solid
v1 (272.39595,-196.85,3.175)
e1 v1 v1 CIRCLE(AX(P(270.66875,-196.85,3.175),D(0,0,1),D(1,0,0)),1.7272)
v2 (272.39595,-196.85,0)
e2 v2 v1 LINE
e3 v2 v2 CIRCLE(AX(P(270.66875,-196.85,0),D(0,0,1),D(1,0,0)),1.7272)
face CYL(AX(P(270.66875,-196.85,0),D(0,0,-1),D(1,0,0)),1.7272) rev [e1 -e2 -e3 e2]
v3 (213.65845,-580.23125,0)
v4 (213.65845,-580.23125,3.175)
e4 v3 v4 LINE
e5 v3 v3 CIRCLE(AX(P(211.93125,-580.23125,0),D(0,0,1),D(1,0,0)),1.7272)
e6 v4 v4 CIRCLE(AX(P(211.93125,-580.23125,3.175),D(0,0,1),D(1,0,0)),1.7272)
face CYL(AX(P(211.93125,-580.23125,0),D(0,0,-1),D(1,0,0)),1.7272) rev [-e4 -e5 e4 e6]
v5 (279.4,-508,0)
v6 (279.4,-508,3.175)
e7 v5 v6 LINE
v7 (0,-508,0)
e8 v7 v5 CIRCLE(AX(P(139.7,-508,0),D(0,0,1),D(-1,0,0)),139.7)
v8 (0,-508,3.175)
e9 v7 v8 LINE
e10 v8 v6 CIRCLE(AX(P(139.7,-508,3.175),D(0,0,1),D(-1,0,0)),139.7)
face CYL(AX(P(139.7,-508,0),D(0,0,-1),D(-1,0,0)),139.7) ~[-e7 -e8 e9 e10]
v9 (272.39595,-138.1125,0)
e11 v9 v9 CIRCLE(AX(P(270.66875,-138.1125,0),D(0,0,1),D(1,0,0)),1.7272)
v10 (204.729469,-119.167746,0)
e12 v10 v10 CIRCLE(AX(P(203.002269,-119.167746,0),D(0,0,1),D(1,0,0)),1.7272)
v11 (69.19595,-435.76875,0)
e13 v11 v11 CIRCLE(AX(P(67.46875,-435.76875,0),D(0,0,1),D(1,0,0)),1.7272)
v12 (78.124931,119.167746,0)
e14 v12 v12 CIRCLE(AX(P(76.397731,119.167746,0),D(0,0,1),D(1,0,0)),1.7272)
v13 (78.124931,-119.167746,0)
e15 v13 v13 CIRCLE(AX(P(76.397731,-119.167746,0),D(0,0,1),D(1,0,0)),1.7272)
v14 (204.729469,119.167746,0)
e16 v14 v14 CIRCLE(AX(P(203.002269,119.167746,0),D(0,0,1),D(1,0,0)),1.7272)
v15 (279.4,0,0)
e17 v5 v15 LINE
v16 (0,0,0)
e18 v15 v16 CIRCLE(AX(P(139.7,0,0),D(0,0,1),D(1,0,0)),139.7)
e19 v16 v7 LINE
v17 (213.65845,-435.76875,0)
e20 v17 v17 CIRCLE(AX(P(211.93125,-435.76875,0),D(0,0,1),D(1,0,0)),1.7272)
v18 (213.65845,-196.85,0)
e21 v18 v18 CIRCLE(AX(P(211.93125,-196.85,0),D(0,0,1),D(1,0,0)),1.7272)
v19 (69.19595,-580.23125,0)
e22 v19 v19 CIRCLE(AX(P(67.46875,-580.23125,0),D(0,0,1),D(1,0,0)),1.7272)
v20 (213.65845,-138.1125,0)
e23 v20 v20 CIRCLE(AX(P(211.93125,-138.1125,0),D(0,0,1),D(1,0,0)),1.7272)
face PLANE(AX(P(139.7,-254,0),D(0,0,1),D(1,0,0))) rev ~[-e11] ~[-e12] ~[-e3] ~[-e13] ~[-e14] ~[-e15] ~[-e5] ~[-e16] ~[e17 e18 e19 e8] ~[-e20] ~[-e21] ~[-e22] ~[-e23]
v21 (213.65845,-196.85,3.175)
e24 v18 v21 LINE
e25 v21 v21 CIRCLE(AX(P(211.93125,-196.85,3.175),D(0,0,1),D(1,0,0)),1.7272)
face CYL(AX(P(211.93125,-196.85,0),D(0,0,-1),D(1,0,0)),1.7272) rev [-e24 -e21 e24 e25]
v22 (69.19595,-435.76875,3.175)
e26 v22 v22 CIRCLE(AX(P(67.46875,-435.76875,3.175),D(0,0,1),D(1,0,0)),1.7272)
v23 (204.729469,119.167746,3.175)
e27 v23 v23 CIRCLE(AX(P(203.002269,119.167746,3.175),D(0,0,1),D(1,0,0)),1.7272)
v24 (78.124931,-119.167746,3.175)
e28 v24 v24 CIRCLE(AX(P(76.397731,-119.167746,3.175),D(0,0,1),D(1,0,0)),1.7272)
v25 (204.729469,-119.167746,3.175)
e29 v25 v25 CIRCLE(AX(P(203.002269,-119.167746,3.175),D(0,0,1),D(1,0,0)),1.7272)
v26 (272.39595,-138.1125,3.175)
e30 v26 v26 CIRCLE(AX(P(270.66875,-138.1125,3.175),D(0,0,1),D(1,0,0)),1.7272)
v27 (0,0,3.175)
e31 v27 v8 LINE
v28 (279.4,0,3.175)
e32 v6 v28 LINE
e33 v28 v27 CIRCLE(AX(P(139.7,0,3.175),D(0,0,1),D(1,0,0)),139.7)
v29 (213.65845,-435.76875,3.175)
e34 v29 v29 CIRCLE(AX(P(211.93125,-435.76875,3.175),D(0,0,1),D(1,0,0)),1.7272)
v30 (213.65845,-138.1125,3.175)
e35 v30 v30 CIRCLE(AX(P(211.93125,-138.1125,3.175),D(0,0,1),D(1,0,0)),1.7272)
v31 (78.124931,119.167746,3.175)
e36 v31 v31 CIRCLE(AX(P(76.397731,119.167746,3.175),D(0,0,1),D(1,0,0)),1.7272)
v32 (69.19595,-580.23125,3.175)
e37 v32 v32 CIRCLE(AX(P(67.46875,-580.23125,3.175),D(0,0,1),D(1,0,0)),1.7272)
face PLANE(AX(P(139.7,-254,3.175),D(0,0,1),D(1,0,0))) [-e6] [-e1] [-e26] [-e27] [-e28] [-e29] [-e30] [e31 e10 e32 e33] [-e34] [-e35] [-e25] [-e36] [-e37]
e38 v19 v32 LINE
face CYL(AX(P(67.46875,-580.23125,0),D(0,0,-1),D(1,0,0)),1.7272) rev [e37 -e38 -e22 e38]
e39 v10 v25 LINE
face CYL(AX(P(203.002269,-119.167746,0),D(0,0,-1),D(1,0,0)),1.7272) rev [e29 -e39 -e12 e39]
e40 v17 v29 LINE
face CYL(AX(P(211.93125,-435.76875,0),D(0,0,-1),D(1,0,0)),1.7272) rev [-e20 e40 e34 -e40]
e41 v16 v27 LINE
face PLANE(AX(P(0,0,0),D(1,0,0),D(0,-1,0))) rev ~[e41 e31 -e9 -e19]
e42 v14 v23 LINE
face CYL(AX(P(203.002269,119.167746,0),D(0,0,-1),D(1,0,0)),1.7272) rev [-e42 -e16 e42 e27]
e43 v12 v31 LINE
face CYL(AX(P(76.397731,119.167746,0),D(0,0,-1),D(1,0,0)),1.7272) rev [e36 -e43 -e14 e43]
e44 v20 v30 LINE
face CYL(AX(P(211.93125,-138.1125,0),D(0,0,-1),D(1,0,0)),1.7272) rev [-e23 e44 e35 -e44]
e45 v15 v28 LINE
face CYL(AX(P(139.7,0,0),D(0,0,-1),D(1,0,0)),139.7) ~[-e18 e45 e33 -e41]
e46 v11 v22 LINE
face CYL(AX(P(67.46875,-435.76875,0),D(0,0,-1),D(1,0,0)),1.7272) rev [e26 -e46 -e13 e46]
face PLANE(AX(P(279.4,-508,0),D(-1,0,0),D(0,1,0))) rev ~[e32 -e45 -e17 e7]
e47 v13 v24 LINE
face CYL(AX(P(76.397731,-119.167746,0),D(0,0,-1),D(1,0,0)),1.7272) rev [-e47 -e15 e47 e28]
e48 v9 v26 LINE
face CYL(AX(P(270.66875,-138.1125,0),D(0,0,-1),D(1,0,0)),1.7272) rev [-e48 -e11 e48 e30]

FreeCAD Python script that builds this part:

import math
import FreeCAD as App
import Part
import Sketcher

V = App.Vector
Q = App.Units.Quantity

doc = App.newDocument("Part")
body = doc.addObject("PartDesign::Body", "Body")

# Sketch on XY plane
sketch1 = body.newObject("Sketcher::SketchObject", "Sketch")
sketch1.AttachmentSupport = (doc.getObject("XY_Plane"), [""])
sketch1.MapMode = "FlatFace"
sketch1.addGeometry(Part.ArcOfCircle(Part.Circle(V(139.7, 0, 0), V(0, 0, 1), 139.7), math.radians(0), math.radians(180)), False)
sketch1.addGeometry(Part.LineSegment(V(0, 0, 0), V(0, -508, 0)), False)
sketch1.addGeometry(Part.ArcOfCircle(Part.Circle(V(139.7, -508, 0), V(0, 0, 1), 139.7), math.radians(180), math.radians(360)), False)
sketch1.addGeometry(Part.LineSegment(V(279.4, -508, 0), V(279.4, 0, 0)), False)
sketch1.addGeometry(Part.Circle(V(67.5, -580.2, 0), V(0, 0, 1), 1.7), False)
sketch1.addGeometry(Part.Circle(V(67.5, -435.8, 0), V(0, 0, 1), 1.7), False)
sketch1.addGeometry(Part.Circle(V(211.9, -580.2, 0), V(0, 0, 1), 1.7), False)
sketch1.addGeometry(Part.Circle(V(211.9, -435.8, 0), V(0, 0, 1), 1.7), False)
sketch1.addGeometry(Part.Circle(V(76.4, -119.2, 0), V(0, 0, 1), 1.7), False)
sketch1.addGeometry(Part.Circle(V(76.4, 119.2, 0), V(0, 0, 1), 1.7), False)
sketch1.addGeometry(Part.Circle(V(211.9, -196.8, 0), V(0, 0, 1), 1.7), False)
sketch1.addGeometry(Part.Circle(V(203, -119.2, 0), V(0, 0, 1), 1.7), False)
sketch1.addGeometry(Part.Circle(V(211.9, -138.1, 0), V(0, 0, 1), 1.7), False)
sketch1.addGeometry(Part.Circle(V(270.7, -196.8, 0), V(0, 0, 1), 1.7), False)
sketch1.addGeometry(Part.Circle(V(270.7, -138.1, 0), V(0, 0, 1), 1.7), False)
sketch1.addGeometry(Part.Circle(V(203, 119.2, 0), V(0, 0, 1), 1.7), False)
sketch1.addConstraint(Sketcher.Constraint("Tangent", 0, 2, 1, 1))
sketch1.addConstraint(Sketcher.Constraint("Tangent", 1, 2, 2, 1))
sketch1.addConstraint(Sketcher.Constraint("Tangent", 2, 2, 3, 1))
sketch1.addConstraint(Sketcher.Constraint("Tangent", 3, 2, 0, 1))
sketch1.addConstraint(Sketcher.Constraint("Vertical", 1))
sketch1.addConstraint(Sketcher.Constraint("Vertical", 3))
sketch1.addConstraint(Sketcher.Constraint("Coincident", 0, 2, -1, 1))
sketch1.addConstraint(Sketcher.Constraint("Equal", 4, 5))
sketch1.addConstraint(Sketcher.Constraint("Equal", 5, 6))
sketch1.addConstraint(Sketcher.Constraint("Equal", 6, 7))
sketch1.addConstraint(Sketcher.Constraint("Equal", 7, 8))
sketch1.addConstraint(Sketcher.Constraint("Equal", 8, 9))
sketch1.addConstraint(Sketcher.Constraint("Equal", 9, 10))
sketch1.addConstraint(Sketcher.Constraint("Equal", 10, 11))
sketch1.addConstraint(Sketcher.Constraint("Equal", 11, 12))
sketch1.addConstraint(Sketcher.Constraint("Equal", 12, 13))
sketch1.addConstraint(Sketcher.Constraint("Equal", 13, 14))
sketch1.addConstraint(Sketcher.Constraint("Equal", 14, 15))
sketch1.addConstraint(Sketcher.Constraint("Symmetric", 8, 3, 9, 3, -1))
sketch1.addConstraint(Sketcher.Constraint("Symmetric", 11, 3, 15, 3, -1))
sketch1.addConstraint(Sketcher.Constraint("Horizontal", 4, 3, 6, 3))
sketch1.addConstraint(Sketcher.Constraint("Horizontal", 5, 3, 7, 3))
sketch1.addConstraint(Sketcher.Constraint("Horizontal", 8, 3, 11, 3))
sketch1.addConstraint(Sketcher.Constraint("Horizontal", 10, 3, 13, 3))
sketch1.addConstraint(Sketcher.Constraint("Horizontal", 12, 3, 14, 3))
sketch1.addConstraint(Sketcher.Constraint("Vertical", 4, 3, 5, 3))
sketch1.addConstraint(Sketcher.Constraint("Vertical", 6, 3, 7, 3))
sketch1.addConstraint(Sketcher.Constraint("Vertical", 7, 3, 10, 3))
sketch1.addConstraint(Sketcher.Constraint("Vertical", 10, 3, 12, 3))
sketch1.addConstraint(Sketcher.Constraint("Vertical", 13, 3, 14, 3))
sketch1.addConstraint(Sketcher.Constraint("Radius", 0, Q("5.5 in")))
sketch1.addConstraint(Sketcher.Constraint("DistanceY", 1, 2, 1, 1, Q("20 in")))
sketch1.addConstraint(Sketcher.Constraint("Diameter", 4, Q("0.136 in")))
sketch1.addConstraint(Sketcher.Constraint("DistanceY", 10, 3, -1, 1, Q("7.75 in")))
sketch1.addConstraint(Sketcher.Constraint("DistanceX", -1, 1, 4, 3, Q("2.65625 in")))
sketch1.addConstraint(Sketcher.Constraint("DistanceY", 4, 3, -1, 1, Q("22.84375 in")))
sketch1.addConstraint(Sketcher.Constraint("DistanceY", 5, 3, -1, 1, Q("17.15625 in")))
sketch1.addConstraint(Sketcher.Constraint("DistanceX", -1, 1, 6, 3, Q("8.34375 in")))
sketch1.addConstraint(Sketcher.Constraint("DistanceY", 12, 3, -1, 1, Q("5.4375 in")))
sketch1.addConstraint(Sketcher.Constraint("DistanceX", -1, 1, 13, 3, Q("10.65625 in")))
sketch1.addConstraint(Sketcher.Constraint("DistanceX", -1, 1, 8, 3, Q("76.397731 mm")))
sketch1.addConstraint(Sketcher.Constraint("DistanceX", -1, 1, 11, 3, Q("203.002269 mm")))
sketch1.addConstraint(Sketcher.Constraint("DistanceY", 8, 3, 9, 3, Q("238.335492 mm")))
pad1 = body.newObject("PartDesign::Pad", "Pad")
pad1.Profile = sketch1
pad1.Length = Q("0.125 in")

doc.recompute()
